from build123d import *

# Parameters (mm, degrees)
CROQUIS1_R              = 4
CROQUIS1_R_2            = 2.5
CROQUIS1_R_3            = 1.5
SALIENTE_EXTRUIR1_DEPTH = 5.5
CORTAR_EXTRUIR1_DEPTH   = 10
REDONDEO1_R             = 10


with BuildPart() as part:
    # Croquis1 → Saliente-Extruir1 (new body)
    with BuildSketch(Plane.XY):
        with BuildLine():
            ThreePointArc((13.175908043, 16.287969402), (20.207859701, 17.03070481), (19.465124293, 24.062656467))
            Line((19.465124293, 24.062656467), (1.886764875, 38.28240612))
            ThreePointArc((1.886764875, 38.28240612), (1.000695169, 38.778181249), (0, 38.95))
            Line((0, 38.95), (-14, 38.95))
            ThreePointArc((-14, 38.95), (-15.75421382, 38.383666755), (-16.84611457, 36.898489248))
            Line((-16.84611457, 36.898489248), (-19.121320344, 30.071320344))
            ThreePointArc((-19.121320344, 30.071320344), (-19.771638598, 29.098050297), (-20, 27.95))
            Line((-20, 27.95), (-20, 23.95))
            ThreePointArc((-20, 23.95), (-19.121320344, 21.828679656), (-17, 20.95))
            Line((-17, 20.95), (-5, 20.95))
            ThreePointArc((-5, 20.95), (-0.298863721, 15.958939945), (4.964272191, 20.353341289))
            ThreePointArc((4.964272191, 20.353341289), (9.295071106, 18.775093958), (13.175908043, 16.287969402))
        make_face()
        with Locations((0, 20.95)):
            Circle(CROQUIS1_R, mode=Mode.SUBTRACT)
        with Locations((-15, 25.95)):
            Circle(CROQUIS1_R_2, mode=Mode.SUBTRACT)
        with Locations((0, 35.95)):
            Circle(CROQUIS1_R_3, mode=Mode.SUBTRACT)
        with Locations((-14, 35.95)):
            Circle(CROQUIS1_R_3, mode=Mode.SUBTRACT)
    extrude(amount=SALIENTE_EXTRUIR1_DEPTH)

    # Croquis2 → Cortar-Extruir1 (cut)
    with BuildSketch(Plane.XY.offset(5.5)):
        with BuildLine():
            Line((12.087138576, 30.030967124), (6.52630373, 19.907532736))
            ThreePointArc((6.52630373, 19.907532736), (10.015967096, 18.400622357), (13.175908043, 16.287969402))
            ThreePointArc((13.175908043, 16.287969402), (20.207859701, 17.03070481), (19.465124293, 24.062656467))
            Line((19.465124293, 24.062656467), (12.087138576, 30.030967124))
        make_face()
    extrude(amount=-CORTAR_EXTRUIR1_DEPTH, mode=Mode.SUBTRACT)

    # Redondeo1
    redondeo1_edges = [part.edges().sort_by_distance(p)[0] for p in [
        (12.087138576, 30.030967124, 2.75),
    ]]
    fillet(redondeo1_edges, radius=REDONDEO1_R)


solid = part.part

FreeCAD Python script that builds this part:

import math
import FreeCAD as App
import Part
import Sketcher
from FreeCAD import Vector


def edges_at(feature, points):
    """Names of the edges that pass closest to the given points."""
    edges = feature.Shape.Edges
    near = lambda p: min(range(len(edges)), key=lambda i: edges[i].distToShape(Part.Vertex(*p))[0])
    return sorted({f"Edge{near(p) + 1}" for p in points})

doc = App.newDocument("Part")
body = doc.addObject("PartDesign::Body", "Body")

sketch1 = body.newObject("Sketcher::SketchObject", "Sketch")
sketch1.AttachmentSupport = (doc.getObject("XY_Plane"), [""])
sketch1.MapMode = "FlatFace"
sketch1.addGeometry(Part.ArcOfCircle(Part.Circle(Vector(16.3, 20.2, 0), Vector(0, 0, 1), 5), math.radians(-129), math.radians(51)), False)
sketch1.addGeometry(Part.LineSegment(Vector(19.5, 24.1, 0), Vector(1.9, 38.3, 0)), False)
sketch1.addGeometry(Part.ArcOfCircle(Part.Circle(Vector(0, 35.9, 0), Vector(0, 0, 1), 3), math.radians(51), math.radians(90)), False)
sketch1.addGeometry(Part.LineSegment(Vector(0, 39, 0), Vector(-14, 39, 0)), False)
sketch1.addGeometry(Part.ArcOfCircle(Part.Circle(Vector(-14, 36, 0), Vector(0, 0, 1), 3), math.radians(90), math.radians(162)), False)
sketch1.addGeometry(Part.LineSegment(Vector(-16.8, 36.9, 0), Vector(-19.1, 30.1, 0)), False)
sketch1.addGeometry(Part.ArcOfCircle(Part.Circle(Vector(-17, 28, 0), Vector(0, 0, 1), 3), math.radians(135), math.radians(180)), False)
sketch1.addGeometry(Part.LineSegment(Vector(-20, 27.9, 0), Vector(-20, 23.9, 0)), False)
sketch1.addGeometry(Part.ArcOfCircle(Part.Circle(Vector(-17, 23.9, 0), Vector(0, 0, 1), 3), math.radians(180), math.radians(270)), False)
sketch1.addGeometry(Part.LineSegment(Vector(-17, 20.9, 0), Vector(-5, 20.9, 0)), False)
sketch1.addGeometry(Part.ArcOfCircle(Part.Circle(Vector(0, 21, 0), Vector(0, 0, 1), 5), math.radians(-180), math.radians(-7)), False)
sketch1.addGeometry(Part.ArcOfCircle(Part.Circle(Vector(0, 0, 0), Vector(0, 0, 1), 21), math.radians(51), math.radians(76)), False)
sketch1.addGeometry(Part.Circle(Vector(-15, 25.9, 0), Vector(0, 0, 1), 2.5), False)
sketch1.addGeometry(Part.Circle(Vector(0, 20.9, 0), Vector(0, 0, 1), 4), False)
sketch1.addGeometry(Part.Circle(Vector(-14, 36, 0), Vector(0, 0, 1), 1.5), False)
sketch1.addGeometry(Part.Circle(Vector(0, 36, 0), Vector(0, 0, 1), 1.5), False)
sketch1.addConstraint(Sketcher.Constraint("Tangent", 0, 2, 1, 1))
sketch1.addConstraint(Sketcher.Constraint("Tangent", 1, 2, 2, 1))
sketch1.addConstraint(Sketcher.Constraint("Tangent", 2, 2, 3, 1))
sketch1.addConstraint(Sketcher.Constraint("Tangent", 3, 2, 4, 1))
sketch1.addConstraint(Sketcher.Constraint("Tangent", 4, 2, 5, 1))
sketch1.addConstraint(Sketcher.Constraint("Coincident", 5, 2, 6, 1))
sketch1.addConstraint(Sketcher.Constraint("Tangent", 6, 2, 7, 1))
sketch1.addConstraint(Sketcher.Constraint("Tangent", 7, 2, 8, 1))
sketch1.addConstraint(Sketcher.Constraint("Tangent", 8, 2, 9, 1))
sketch1.addConstraint(Sketcher.Constraint("Coincident", 9, 2, 10, 1))
sketch1.addConstraint(Sketcher.Constraint("Coincident", 10, 2, 11, 2))
sketch1.addConstraint(Sketcher.Constraint("Tangent", 11, 1, 0, 1))
sketch1.addConstraint(Sketcher.Constraint("Horizontal", 3))
sketch1.addConstraint(Sketcher.Constraint("Vertical", 7))
sketch1.addConstraint(Sketcher.Constraint("Horizontal", 9))
sketch1.addConstraint(Sketcher.Constraint("Coincident", 11, 3, -1, 1))
sketch1.addConstraint(Sketcher.Constraint("Coincident", 13, 3, 10, 3))
sketch1.addConstraint(Sketcher.Constraint("Coincident", 14, 3, 4, 3))
sketch1.addConstraint(Sketcher.Constraint("Coincident", 15, 3, 2, 3))
sketch1.addConstraint(Sketcher.Constraint("Equal", 2, 4))
sketch1.addConstraint(Sketcher.Constraint("Equal", 4, 6))
sketch1.addConstraint(Sketcher.Constraint("Equal", 6, 8))
sketch1.addConstraint(Sketcher.Constraint("Equal", 0, 10))
sketch1.addConstraint(Sketcher.Constraint("Equal", 14, 15))
sketch1.addConstraint(Sketcher.Constraint("PointOnObject", 2, 3, -2))
sketch1.addConstraint(Sketcher.Constraint("PointOnObject", 10, 3, -2))
sketch1.addConstraint(Sketcher.Constraint("Horizontal", 13, 3, 8, 2))
sketch1.addConstraint(Sketcher.Constraint("Diameter", 12, 5.0))
sketch1.addConstraint(Sketcher.Constraint("Diameter", 13, 8.0))
sketch1.addConstraint(Sketcher.Constraint("Diameter", 14, 3.0))
sketch1.addConstraint(Sketcher.Constraint("Radius", 0, 5.0))
sketch1.addConstraint(Sketcher.Constraint("Radius", 2, 3.0))
sketch1.addConstraint(Sketcher.Constraint("DistanceX", 3, 2, 3, 1, 14.0))
sketch1.addConstraint(Sketcher.Constraint("DistanceX", 9, 1, 9, 2, 12.0))
sketch1.addConstraint(Sketcher.Constraint("DistanceY", 7, 2, 7, 1, 4.0))
sketch1.addConstraint(Sketcher.Constraint("Radius", 11, 20.95))
sketch1.addConstraint(Sketcher.Constraint("DistanceX", 12, 3, -1, 1, 15.0))
sketch1.addConstraint(Sketcher.Constraint("DistanceY", 6, 3, 4, 3, 8.0))
sketch1.addConstraint(Sketcher.Constraint("DistanceY", 12, 3, 6, 3, 2.0))
sketch1.addConstraint(Sketcher.Constraint("DistanceY", -1, 1, 2, 3, 35.95))
sketch1.addConstraint(Sketcher.Constraint("DistanceY", -1, 1, 4, 2, 36.898489))
sketch1.addConstraint(Sketcher.Constraint("DistanceX", -1, 1, 11, 1, 13.175908))
pad1 = body.newObject("PartDesign::Pad", "Pad")
pad1.Profile = sketch1
pad1.Length = 5.5

sketch2 = body.newObject("Sketcher::SketchObject", "Sketch001")
sketch2.AttachmentSupport = (doc.getObject("XY_Plane"), [""])
sketch2.MapMode = "FlatFace"
sketch2.AttachmentOffset = App.Placement(Vector(0, 0, 5.5), App.Rotation())
sketch2.addGeometry(Part.LineSegment(Vector(12, 30, 0), Vector(7, 20, 0)), False)
sketch2.addGeometry(Part.ArcOfCircle(Part.Circle(Vector(0, 0, 0), Vector(0, 0, 1), 21), math.radians(51), math.radians(72)), False)
sketch2.addGeometry(Part.ArcOfCircle(Part.Circle(Vector(16, 20, 0), Vector(0, 0, 1), 5), math.radians(-129), math.radians(51)), False)
sketch2.addGeometry(Part.LineSegment(Vector(19, 24, 0), Vector(12, 30, 0)), False)
sketch2.addConstraint(Sketcher.Constraint("Coincident", 0, 2, 1, 2))
sketch2.addConstraint(Sketcher.Constraint("Tangent", 1, 1, 2, 1))
sketch2.addConstraint(Sketcher.Constraint("Tangent", 2, 2, 3, 1))
sketch2.addConstraint(Sketcher.Constraint("Coincident", 3, 2, 0, 1))
sketch2.addConstraint(Sketcher.Constraint("Coincident", 1, 3, -1, 1))
sketch2.addConstraint(Sketcher.Constraint("Radius", 2, 5.0))
sketch2.addConstraint(Sketcher.Constraint("Radius", 1, 20.95))
sketch2.addConstraint(Sketcher.Constraint("DistanceX", -1, 1, 1, 1, 13.175908))
sketch2.addConstraint(Sketcher.Constraint("DistanceX", -1, 1, 3, 2, 12.087139))
sketch2.addConstraint(Sketcher.Constraint("DistanceY", 0, 2, 2, 3, 0.26778))
sketch2.addConstraint(Sketcher.Constraint("DistanceX", 2, 3, 2, 2, 3.144608))
pocket1 = body.newObject("PartDesign::Pocket", "Pocket")
pocket1.Profile = sketch2
pocket1.Length = 10
doc.recompute()

fillet = body.newObject("PartDesign::Fillet", "Fillet")
fillet.Base = (pocket1, edges_at(pocket1, [(12.087, 30.031, 2.75)]))
fillet.Radius = 10

doc.recompute()
